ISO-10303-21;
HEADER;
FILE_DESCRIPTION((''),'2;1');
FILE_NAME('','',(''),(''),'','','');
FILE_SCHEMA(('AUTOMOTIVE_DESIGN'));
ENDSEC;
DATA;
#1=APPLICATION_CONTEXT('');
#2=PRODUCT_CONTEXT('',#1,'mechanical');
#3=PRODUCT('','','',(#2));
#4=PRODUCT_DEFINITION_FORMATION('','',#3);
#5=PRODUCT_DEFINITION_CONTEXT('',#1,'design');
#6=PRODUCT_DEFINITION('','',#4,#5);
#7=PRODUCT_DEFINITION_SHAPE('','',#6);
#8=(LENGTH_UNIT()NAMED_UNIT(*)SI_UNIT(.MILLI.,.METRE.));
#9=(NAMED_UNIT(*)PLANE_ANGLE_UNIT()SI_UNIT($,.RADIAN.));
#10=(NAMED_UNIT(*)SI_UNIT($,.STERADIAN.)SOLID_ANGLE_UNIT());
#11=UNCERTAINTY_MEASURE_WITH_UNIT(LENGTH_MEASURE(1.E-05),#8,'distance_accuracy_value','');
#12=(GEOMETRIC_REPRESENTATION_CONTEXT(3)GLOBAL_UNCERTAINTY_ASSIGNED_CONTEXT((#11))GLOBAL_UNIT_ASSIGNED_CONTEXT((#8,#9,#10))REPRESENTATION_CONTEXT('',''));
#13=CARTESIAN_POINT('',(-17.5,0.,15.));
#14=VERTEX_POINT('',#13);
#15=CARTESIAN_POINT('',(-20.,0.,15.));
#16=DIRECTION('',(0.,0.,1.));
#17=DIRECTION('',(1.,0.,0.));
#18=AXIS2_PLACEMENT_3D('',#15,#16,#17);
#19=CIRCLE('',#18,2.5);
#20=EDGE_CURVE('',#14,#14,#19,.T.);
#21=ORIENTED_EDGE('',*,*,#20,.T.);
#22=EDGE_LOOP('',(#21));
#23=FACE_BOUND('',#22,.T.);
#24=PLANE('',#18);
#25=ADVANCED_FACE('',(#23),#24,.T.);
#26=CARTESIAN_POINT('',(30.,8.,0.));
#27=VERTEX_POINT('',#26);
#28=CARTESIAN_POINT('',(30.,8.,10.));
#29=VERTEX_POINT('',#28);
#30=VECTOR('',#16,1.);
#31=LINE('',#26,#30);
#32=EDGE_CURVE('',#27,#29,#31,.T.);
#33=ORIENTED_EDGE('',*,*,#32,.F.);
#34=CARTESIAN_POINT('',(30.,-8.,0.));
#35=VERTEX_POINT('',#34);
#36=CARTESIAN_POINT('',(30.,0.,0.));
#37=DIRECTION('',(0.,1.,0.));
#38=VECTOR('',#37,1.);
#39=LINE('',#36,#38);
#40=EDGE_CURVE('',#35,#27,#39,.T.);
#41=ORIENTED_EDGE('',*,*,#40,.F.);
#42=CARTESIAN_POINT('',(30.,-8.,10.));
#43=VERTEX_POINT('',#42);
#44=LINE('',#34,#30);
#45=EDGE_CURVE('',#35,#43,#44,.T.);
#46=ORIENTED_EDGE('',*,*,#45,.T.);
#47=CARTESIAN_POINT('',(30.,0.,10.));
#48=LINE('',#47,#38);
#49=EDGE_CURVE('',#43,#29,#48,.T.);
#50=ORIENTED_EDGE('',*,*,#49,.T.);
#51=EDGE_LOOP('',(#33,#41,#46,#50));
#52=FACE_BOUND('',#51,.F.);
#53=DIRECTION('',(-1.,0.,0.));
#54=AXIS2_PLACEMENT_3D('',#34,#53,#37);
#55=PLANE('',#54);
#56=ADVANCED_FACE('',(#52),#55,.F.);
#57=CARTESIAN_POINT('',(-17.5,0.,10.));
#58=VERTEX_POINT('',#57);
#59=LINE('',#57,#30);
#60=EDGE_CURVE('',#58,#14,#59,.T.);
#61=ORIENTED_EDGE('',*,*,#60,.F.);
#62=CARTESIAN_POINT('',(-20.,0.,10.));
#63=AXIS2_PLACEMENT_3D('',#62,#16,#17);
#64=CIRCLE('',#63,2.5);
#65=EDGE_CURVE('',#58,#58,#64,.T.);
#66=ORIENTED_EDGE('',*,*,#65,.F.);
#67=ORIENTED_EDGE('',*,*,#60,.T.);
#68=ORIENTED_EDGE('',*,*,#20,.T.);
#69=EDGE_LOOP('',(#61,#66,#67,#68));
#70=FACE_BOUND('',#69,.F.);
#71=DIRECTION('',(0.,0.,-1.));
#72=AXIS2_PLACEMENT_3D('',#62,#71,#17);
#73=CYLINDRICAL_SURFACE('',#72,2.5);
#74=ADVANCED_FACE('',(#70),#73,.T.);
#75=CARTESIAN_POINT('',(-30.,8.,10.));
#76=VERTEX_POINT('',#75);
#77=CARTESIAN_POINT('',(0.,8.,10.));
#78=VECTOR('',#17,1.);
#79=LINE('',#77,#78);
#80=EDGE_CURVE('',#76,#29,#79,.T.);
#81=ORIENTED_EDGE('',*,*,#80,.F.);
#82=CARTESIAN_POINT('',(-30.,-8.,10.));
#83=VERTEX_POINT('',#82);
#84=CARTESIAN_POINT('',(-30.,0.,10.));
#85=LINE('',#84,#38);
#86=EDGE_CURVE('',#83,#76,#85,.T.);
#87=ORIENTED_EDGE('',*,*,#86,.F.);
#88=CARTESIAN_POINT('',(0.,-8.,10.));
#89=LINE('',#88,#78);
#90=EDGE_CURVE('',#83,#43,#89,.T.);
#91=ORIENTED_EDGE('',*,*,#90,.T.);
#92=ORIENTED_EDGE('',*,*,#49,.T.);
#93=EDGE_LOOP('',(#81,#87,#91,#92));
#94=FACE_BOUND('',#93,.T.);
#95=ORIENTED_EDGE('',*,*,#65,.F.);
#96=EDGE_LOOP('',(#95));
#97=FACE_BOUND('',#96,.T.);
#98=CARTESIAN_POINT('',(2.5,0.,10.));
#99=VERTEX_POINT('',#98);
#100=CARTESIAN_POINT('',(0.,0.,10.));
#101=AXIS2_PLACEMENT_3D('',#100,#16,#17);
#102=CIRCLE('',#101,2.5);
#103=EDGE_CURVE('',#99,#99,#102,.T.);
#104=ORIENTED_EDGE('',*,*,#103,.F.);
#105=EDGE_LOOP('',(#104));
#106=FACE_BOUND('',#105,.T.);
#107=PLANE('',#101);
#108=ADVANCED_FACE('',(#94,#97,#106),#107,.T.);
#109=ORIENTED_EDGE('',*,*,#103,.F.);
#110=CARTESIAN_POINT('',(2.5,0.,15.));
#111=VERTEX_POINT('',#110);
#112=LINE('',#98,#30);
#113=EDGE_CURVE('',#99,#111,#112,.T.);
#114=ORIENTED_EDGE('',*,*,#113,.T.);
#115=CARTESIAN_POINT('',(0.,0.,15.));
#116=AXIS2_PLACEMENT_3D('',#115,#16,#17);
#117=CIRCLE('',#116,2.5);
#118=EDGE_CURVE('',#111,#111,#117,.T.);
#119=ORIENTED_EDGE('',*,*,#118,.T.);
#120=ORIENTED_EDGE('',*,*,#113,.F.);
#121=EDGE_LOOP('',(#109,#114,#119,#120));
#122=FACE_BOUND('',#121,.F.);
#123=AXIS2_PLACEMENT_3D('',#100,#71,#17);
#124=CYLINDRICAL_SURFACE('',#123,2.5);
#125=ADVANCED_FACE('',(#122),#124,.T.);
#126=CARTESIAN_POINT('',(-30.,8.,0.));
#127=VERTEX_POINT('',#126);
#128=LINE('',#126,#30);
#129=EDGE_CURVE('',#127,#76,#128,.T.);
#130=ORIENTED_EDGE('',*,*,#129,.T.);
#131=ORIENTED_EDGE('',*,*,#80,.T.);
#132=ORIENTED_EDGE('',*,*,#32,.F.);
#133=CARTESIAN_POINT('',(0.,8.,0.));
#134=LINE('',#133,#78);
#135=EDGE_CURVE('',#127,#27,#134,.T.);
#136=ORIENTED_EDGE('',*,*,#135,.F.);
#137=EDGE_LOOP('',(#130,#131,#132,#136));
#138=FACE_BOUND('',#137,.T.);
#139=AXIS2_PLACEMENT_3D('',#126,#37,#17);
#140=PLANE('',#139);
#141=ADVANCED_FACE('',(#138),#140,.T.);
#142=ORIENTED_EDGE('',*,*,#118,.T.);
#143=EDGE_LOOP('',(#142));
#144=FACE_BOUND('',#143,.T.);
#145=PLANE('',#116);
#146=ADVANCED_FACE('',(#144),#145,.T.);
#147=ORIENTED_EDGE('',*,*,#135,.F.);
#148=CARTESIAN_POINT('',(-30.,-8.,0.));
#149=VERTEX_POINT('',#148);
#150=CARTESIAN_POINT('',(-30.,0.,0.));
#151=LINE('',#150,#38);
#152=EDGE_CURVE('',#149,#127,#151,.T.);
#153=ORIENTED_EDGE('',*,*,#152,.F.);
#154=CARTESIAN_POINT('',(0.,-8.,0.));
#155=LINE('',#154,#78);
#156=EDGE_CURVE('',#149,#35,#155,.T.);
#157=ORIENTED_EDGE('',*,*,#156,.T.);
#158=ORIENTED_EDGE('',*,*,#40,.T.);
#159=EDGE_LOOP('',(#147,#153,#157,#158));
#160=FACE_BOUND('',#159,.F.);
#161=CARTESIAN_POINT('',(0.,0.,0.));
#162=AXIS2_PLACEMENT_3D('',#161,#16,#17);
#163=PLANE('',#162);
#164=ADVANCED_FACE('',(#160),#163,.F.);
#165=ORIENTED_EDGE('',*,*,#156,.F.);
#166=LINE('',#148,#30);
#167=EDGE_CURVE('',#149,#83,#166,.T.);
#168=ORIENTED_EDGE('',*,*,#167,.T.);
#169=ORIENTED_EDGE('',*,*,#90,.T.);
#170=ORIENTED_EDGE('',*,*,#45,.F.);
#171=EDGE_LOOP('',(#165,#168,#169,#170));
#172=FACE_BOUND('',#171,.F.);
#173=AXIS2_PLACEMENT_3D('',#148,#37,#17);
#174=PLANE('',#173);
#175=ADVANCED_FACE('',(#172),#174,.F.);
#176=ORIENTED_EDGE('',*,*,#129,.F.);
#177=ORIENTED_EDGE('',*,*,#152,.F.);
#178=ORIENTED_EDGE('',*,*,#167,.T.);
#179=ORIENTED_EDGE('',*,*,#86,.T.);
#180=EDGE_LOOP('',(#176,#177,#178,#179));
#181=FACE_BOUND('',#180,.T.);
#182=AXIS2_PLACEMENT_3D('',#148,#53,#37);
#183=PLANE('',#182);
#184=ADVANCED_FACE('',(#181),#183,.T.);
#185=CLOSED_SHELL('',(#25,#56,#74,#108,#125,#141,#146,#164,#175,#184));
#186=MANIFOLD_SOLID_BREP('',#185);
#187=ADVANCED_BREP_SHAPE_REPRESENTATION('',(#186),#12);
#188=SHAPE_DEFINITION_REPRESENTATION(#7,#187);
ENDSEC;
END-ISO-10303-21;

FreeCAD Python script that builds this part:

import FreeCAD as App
import Part
import Sketcher

V = App.Vector


def add_polygon(sketch, points):
    """Adds a closed chain of lines whose ends are joined by coincident constraints."""
    first, n = sketch.GeometryCount, len(points)
    for a, b in zip(points, points[1:] + points[:1]):
        sketch.addGeometry(Part.LineSegment(App.Vector(*a, 0), App.Vector(*b, 0)), False)
    for i in range(n):
        sketch.addConstraint(Sketcher.Constraint("Coincident", first + i, 2, first + (i + 1) % n, 1))

doc = App.newDocument("Part")
body = doc.addObject("PartDesign::Body", "Body")

# Sketch on XY plane
sketch1 = doc.addObject("Sketcher::SketchObject", "Sketch")
body.addObject(sketch1)
sketch1.AttachmentSupport = (doc.XY_Plane, [""])
sketch1.MapMode = "FlatFace"
add_polygon(sketch1, [(-30, 8), (-30, -8), (30, -8), (30, 8)])  # lines 0-3
sketch1.addConstraint([
    Sketcher.Constraint("Vertical", 0),
    Sketcher.Constraint("Horizontal", 1),
    Sketcher.Constraint("Vertical", 2),
    Sketcher.Constraint("Horizontal", 3),
    Sketcher.Constraint("Symmetric", 0, 2, 2, 2, -1, 1),
    Sketcher.Constraint("DistanceX", 1, 1, 1, 2, 60.0),
    Sketcher.Constraint("DistanceY", 0, 2, 0, 1, 16.0),
])
pad1 = doc.addObject("PartDesign::Pad", "Pad")
body.addObject(pad1)
pad1.Profile = sketch1
pad1.Length = 10

# Sketch on XY plane
sketch2 = doc.addObject("Sketcher::SketchObject", "Sketch001")
body.addObject(sketch2)
sketch2.AttachmentSupport = (doc.XY_Plane, [""])
sketch2.MapMode = "FlatFace"
sketch2.AttachmentOffset = App.Placement(V(0, 0, 10), App.Rotation())
sketch2.addGeometry(Part.Circle(V(0, 0, 0), V(0, 0, 1), 2.5), False)
sketch2.addConstraint([
    Sketcher.Constraint("Coincident", 0, 3, -1, 1),
    Sketcher.Constraint("Diameter", 0, 5.0),
])
pad2 = doc.addObject("PartDesign::Pad", "Pad001")
body.addObject(pad2)
pad2.Profile = sketch2
pad2.Length = 5

# Sketch on XY plane
sketch3 = doc.addObject("Sketcher::SketchObject", "Sketch002")
body.addObject(sketch3)
sketch3.AttachmentSupport = (doc.XY_Plane, [""])
sketch3.MapMode = "FlatFace"
sketch3.AttachmentOffset = App.Placement(V(0, 0, 10), App.Rotation())
sketch3.addGeometry([
    Part.Circle(V(-20, 0, 0), V(0, 0, 1), 2.5),
    Part.Circle(V(0, 0, 0), V(0, 0, 1), 2.5),
], False)
sketch3.addConstraint([
    Sketcher.Constraint("Coincident", 1, 3, -1, 1),
    Sketcher.Constraint("Equal", 0, 1),
    Sketcher.Constraint("PointOnObject", 0, 3, -1),
    Sketcher.Constraint("Diameter", 0, 5.0),
    Sketcher.Constraint("DistanceX", 0, 3, -1, 1, 20.0),
])
pad3 = doc.addObject("PartDesign::Pad", "Pad002")
body.addObject(pad3)
pad3.Profile = sketch3
pad3.Length = 5

doc.recompute()
